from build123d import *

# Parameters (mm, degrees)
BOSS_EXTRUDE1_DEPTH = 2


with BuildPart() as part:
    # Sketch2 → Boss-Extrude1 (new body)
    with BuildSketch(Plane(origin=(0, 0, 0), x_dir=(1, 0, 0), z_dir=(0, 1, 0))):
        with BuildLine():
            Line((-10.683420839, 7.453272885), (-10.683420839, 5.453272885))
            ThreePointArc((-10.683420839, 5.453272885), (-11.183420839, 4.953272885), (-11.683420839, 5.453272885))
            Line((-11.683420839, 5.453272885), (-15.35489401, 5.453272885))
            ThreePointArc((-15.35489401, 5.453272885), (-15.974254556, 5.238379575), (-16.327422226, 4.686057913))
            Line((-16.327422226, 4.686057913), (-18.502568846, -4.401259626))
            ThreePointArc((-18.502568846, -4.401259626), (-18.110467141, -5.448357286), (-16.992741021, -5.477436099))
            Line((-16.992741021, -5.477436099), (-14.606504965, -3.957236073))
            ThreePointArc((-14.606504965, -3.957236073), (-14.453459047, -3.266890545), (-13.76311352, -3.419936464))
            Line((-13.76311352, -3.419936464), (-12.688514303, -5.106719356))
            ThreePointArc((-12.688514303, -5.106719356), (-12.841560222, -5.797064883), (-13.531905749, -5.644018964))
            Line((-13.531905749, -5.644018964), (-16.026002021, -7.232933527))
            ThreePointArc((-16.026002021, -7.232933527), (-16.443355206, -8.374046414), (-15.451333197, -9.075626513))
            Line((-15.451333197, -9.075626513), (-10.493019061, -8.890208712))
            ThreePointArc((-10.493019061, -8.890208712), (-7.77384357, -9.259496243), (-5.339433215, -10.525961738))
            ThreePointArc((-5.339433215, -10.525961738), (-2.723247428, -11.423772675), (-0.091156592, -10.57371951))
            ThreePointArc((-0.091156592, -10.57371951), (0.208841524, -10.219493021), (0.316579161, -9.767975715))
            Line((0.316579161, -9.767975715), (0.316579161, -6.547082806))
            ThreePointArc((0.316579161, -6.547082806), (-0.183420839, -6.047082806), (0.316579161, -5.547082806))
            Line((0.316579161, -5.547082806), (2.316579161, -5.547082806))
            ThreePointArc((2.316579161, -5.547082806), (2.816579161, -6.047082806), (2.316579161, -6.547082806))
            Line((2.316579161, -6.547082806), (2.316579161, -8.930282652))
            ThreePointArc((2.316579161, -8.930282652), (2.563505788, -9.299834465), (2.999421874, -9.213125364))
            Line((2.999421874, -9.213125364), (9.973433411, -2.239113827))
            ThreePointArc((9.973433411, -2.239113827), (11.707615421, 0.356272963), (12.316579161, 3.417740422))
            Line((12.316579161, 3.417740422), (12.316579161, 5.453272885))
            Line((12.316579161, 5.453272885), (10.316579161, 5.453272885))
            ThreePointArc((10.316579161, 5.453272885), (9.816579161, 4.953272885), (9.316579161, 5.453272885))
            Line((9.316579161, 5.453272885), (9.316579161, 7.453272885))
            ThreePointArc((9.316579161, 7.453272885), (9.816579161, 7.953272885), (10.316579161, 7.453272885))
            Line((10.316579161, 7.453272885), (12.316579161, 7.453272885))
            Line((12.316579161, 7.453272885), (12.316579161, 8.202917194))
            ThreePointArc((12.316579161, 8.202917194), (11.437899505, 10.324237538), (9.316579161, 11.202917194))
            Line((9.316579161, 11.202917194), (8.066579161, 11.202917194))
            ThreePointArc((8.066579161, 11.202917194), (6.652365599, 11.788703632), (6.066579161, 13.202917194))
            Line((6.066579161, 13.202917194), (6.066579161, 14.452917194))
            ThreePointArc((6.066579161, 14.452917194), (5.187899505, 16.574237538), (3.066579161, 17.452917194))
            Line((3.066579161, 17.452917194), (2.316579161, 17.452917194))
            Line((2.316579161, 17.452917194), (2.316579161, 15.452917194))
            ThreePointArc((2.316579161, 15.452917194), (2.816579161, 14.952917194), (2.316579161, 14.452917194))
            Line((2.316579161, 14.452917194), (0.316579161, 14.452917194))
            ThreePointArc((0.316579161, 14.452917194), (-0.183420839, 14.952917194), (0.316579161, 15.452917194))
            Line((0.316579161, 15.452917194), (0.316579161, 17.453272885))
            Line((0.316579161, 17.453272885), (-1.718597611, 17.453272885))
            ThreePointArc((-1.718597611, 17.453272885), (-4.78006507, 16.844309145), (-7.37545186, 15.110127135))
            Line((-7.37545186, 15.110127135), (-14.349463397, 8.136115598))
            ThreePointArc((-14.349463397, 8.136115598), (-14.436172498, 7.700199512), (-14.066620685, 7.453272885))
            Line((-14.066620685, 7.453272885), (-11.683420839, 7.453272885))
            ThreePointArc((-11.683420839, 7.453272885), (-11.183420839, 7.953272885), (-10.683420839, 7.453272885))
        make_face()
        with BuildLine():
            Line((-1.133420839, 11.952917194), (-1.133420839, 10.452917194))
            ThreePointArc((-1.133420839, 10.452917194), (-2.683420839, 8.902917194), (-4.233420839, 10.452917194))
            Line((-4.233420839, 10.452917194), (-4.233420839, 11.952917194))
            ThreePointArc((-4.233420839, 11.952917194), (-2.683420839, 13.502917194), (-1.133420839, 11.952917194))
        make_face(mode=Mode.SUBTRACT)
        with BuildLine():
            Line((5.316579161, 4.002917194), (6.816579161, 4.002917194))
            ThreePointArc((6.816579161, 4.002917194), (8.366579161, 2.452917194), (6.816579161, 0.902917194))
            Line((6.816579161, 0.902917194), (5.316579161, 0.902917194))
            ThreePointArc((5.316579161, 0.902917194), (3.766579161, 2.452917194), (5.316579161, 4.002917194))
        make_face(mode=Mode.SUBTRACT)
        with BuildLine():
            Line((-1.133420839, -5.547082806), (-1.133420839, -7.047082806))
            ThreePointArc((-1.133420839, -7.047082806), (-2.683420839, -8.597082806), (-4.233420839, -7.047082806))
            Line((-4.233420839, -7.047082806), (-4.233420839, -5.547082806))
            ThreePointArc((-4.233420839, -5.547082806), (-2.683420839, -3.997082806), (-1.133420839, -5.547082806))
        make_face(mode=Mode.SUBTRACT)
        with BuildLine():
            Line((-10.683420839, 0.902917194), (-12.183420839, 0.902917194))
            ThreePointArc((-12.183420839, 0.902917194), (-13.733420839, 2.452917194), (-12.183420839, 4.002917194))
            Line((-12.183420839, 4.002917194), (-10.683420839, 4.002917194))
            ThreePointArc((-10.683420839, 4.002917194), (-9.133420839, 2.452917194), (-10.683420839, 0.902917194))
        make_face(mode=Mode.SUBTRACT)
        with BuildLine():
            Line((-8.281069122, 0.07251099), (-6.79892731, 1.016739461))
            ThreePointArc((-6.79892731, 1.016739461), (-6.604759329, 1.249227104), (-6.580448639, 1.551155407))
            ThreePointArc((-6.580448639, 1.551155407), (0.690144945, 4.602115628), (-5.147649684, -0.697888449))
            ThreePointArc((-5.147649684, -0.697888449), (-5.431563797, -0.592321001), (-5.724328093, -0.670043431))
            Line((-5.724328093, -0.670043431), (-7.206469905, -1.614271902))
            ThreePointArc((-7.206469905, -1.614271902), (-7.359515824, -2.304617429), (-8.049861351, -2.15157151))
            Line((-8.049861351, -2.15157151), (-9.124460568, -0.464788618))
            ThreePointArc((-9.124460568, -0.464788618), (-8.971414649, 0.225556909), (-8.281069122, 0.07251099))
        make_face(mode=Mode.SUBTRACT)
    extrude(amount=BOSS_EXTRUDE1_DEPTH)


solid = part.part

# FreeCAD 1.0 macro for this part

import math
import FreeCAD as App
import Part
import Sketcher
Q = App.Units.Quantity

doc = App.newDocument("Part")
params = doc.addObject("Spreadsheet::Sheet", "Params")
for row, (alias, value) in enumerate([
    ("sketch1_radius", "1 mm"),
    ("sketch1_radius2", "1 mm"),
    ("sketch1_radius3", "1 mm"),
    ("sketch1_radius4", "8 mm"),
    ("sketch1_radius5", "1 mm"),
    ("pad1_length", "2 mm"),
], start=1):
    params.set(f"A{row}", alias)
    params.set(f"B{row}", "=" + value)
    params.setAlias(f"B{row}", alias)

body = doc.addObject("PartDesign::Body", "Body")

# Sketch on XZ plane
sketch1 = body.newObject("Sketcher::SketchObject", "Sketch")
sketch1.AttachmentSupport = (doc.getObject("XZ_Plane"), [""])
sketch1.MapMode = "FlatFace"
sketch1.addGeometry([
    Part.LineSegment(App.Vector(-10.683421, -7.453273, 0), App.Vector(-10.683421, -5.453273, 0)),  # 0
    Part.ArcOfCircle(Part.Circle(App.Vector(-11.183421, -5.453273, 0), App.Vector(0, 0, 1), 0.5), math.radians(0), math.radians(180)),  # 1
    Part.LineSegment(App.Vector(-11.683421, -5.453273, 0), App.Vector(-15.354894, -5.453273, 0)),  # 2
    Part.ArcOfCircle(Part.Circle(App.Vector(-15.354894, -4.453273, 0), App.Vector(0, 0, 1), 1), math.radians(-166.538906), math.radians(-90)),  # 3
    Part.LineSegment(App.Vector(-16.327422, -4.686058, 0), App.Vector(-18.502569, 4.40126, 0)),  # 4
    Part.ArcOfCircle(Part.Circle(App.Vector(-17.530041, 4.634045, 0), App.Vector(0, 0, 1), 1), math.radians(57.5), math.radians(193.461094)),  # 5
    Part.LineSegment(App.Vector(-16.992741, 5.477436, 0), App.Vector(-14.606505, 3.957236, 0)),  # 6
    Part.ArcOfCircle(Part.Circle(App.Vector(-14.184809, 3.688586, 0), App.Vector(0, 0, 1), 0.5), math.radians(147.5), math.radians(327.5)),  # 7
    Part.LineSegment(App.Vector(-13.763114, 3.419936, 0), App.Vector(-12.688514, 5.106719, 0)),  # 8
    Part.ArcOfCircle(Part.Circle(App.Vector(-13.11021, 5.375369, 0), App.Vector(0, 0, 1), 0.5), math.radians(-32.5), math.radians(147.5)),  # 9
    Part.LineSegment(App.Vector(-13.531906, 5.644019, 0), App.Vector(-16.026002, 7.232934, 0)),  # 10
    Part.ArcOfCircle(Part.Circle(App.Vector(-15.488702, 8.076325, 0), App.Vector(0, 0, 1), 1), math.radians(87.858403), math.radians(237.5)),  # 11
    Part.LineSegment(App.Vector(-15.451333, 9.075627, 0), App.Vector(-10.493019, 8.890209, 0)),  # 12
    Part.ArcOfCircle(Part.Circle(App.Vector(-10.194065, 16.884621, 0), App.Vector(0, 0, 1), 8), math.radians(-92.141597), math.radians(-52.639428)),  # 13
    Part.ArcOfCircle(Part.Circle(App.Vector(-2.683421, 7.047083, 0), App.Vector(0, 0, 1), 4.376871), math.radians(53.682149), math.radians(127.360572)),  # 14
    Part.ArcOfCircle(Part.Circle(App.Vector(-0.683421, 9.767976, 0), App.Vector(0, 0, 1), 1), math.radians(0), math.radians(53.682149)),  # 15
    Part.LineSegment(App.Vector(0.316579, 9.767976, 0), App.Vector(0.316579, 6.547083, 0)),  # 16
    Part.ArcOfCircle(Part.Circle(App.Vector(0.316579, 6.047083, 0), App.Vector(0, 0, 1), 0.5), math.radians(90), math.radians(270)),  # 17
    Part.LineSegment(App.Vector(0.316579, 5.547083, 0), App.Vector(2.316579, 5.547083, 0)),  # 18
    Part.ArcOfCircle(Part.Circle(App.Vector(2.316579, 6.047083, 0), App.Vector(0, 0, 1), 0.5), math.radians(-90), math.radians(90)),  # 19
    Part.LineSegment(App.Vector(2.316579, 6.547083, 0), App.Vector(2.316579, 8.930283, 0)),  # 20
    Part.ArcOfCircle(Part.Circle(App.Vector(2.716579, 8.930283, 0), App.Vector(0, 0, 1), 0.4), math.radians(45), math.radians(180)),  # 21
    Part.LineSegment(App.Vector(2.999422, 9.213125, 0), App.Vector(9.973433, 2.239114, 0)),  # 22
    Part.ArcOfCircle(Part.Circle(App.Vector(4.316579, -3.41774, 0), App.Vector(0, 0, 1), 8), math.radians(0), math.radians(45)),  # 23
    Part.LineSegment(App.Vector(12.316579, -3.41774, 0), App.Vector(12.316579, -5.453273, 0)),  # 24
    Part.LineSegment(App.Vector(12.316579, -5.453273, 0), App.Vector(10.316579, -5.453273, 0)),  # 25
    Part.ArcOfCircle(Part.Circle(App.Vector(9.816579, -5.453273, 0), App.Vector(0, 0, 1), 0.5), math.radians(0), math.radians(180)),  # 26
    Part.LineSegment(App.Vector(9.316579, -5.453273, 0), App.Vector(9.316579, -7.453273, 0)),  # 27
    Part.ArcOfCircle(Part.Circle(App.Vector(9.816579, -7.453273, 0), App.Vector(0, 0, 1), 0.5), math.radians(180), math.radians(360)),  # 28
    Part.LineSegment(App.Vector(10.316579, -7.453273, 0), App.Vector(12.316579, -7.453273, 0)),  # 29
    Part.LineSegment(App.Vector(12.316579, -7.453273, 0), App.Vector(12.316579, -8.202917, 0)),  # 30
    Part.ArcOfCircle(Part.Circle(App.Vector(9.316579, -8.202917, 0), App.Vector(0, 0, 1), 3), math.radians(-90), math.radians(0)),  # 31
    Part.LineSegment(App.Vector(9.316579, -11.202917, 0), App.Vector(8.066579, -11.202917, 0)),  # 32
    Part.ArcOfCircle(Part.Circle(App.Vector(8.066579, -13.202917, 0), App.Vector(0, 0, 1), 2), math.radians(90), math.radians(180)),  # 33
    Part.LineSegment(App.Vector(6.066579, -13.202917, 0), App.Vector(6.066579, -14.452917, 0)),  # 34
    Part.ArcOfCircle(Part.Circle(App.Vector(3.066579, -14.452917, 0), App.Vector(0, 0, 1), 3), math.radians(-90), math.radians(0)),  # 35
    Part.LineSegment(App.Vector(3.066579, -17.452917, 0), App.Vector(2.316579, -17.452917, 0)),  # 36
    Part.LineSegment(App.Vector(2.316579, -17.452917, 0), App.Vector(2.316579, -15.452917, 0)),  # 37
    Part.ArcOfCircle(Part.Circle(App.Vector(2.316579, -14.952917, 0), App.Vector(0, 0, 1), 0.5), math.radians(-90), math.radians(90)),  # 38
    Part.LineSegment(App.Vector(2.316579, -14.452917, 0), App.Vector(0.316579, -14.452917, 0)),  # 39
    Part.ArcOfCircle(Part.Circle(App.Vector(0.316579, -14.952917, 0), App.Vector(0, 0, 1), 0.5), math.radians(90), math.radians(270)),  # 40
    Part.LineSegment(App.Vector(0.316579, -15.452917, 0), App.Vector(0.316579, -17.453273, 0)),  # 41
    Part.LineSegment(App.Vector(0.316579, -17.453273, 0), App.Vector(-1.718598, -17.453273, 0)),  # 42
    Part.ArcOfCircle(Part.Circle(App.Vector(-1.718598, -9.453273, 0), App.Vector(0, 0, 1), 8), math.radians(-135), math.radians(-90)),  # 43
    Part.LineSegment(App.Vector(-7.375452, -15.110127, 0), App.Vector(-14.349463, -8.136116, 0)),  # 44
    Part.ArcOfCircle(Part.Circle(App.Vector(-14.066621, -7.853273, 0), App.Vector(0, 0, 1), 0.4), math.radians(90), math.radians(225)),  # 45
    Part.LineSegment(App.Vector(-14.066621, -7.453273, 0), App.Vector(-11.683421, -7.453273, 0)),  # 46
    Part.ArcOfCircle(Part.Circle(App.Vector(-11.183421, -7.453273, 0), App.Vector(0, 0, 1), 0.5), math.radians(180), math.radians(360)),  # 47
    Part.ArcOfCircle(Part.Circle(App.Vector(-8.702765, 0.196139, 0), App.Vector(0, 0, 1), 0.5), math.radians(147.5), math.radians(327.5)),  # 48
    Part.LineSegment(App.Vector(-8.281069, -0.072511, 0), App.Vector(-6.798927, -1.016739, 0)),  # 49
    Part.ArcOfCircle(Part.Circle(App.Vector(-7.067577, -1.438435, 0), App.Vector(0, 0, 1), 0.5), math.radians(-13.028779), math.radians(57.5)),  # 50
    Part.ArcOfCircle(Part.Circle(App.Vector(-2.683421, -2.452917, 0), App.Vector(0, 0, 1), 4), math.radians(166.971221), math.radians(488.028779)),  # 51
    Part.ArcOfCircle(Part.Circle(App.Vector(-5.455678, 1.091739, 0), App.Vector(0, 0, 1), 0.5), math.radians(-122.5), math.radians(-51.97122)),  # 52
    Part.LineSegment(App.Vector(-5.724328, 0.670043, 0), App.Vector(-7.20647, 1.614272, 0)),  # 53
    Part.ArcOfCircle(Part.Circle(App.Vector(-7.628166, 1.882922, 0), App.Vector(0, 0, 1), 0.5), math.radians(-32.5), math.radians(147.5)),  # 54
    Part.LineSegment(App.Vector(-8.049861, 2.151572, 0), App.Vector(-9.124461, 0.464789, 0)),  # 55
    Part.ArcOfCircle(Part.Circle(App.Vector(-2.683421, 5.547083, 0), App.Vector(0, 0, 1), 1.55), math.radians(180), math.radians(360)),  # 56
    Part.LineSegment(App.Vector(-1.133421, 5.547083, 0), App.Vector(-1.133421, 7.047083, 0)),  # 57
    Part.ArcOfCircle(Part.Circle(App.Vector(-2.683421, 7.047083, 0), App.Vector(0, 0, 1), 1.55), math.radians(0), math.radians(180)),  # 58
    Part.LineSegment(App.Vector(-4.233421, 7.047083, 0), App.Vector(-4.233421, 5.547083, 0)),  # 59
    Part.ArcOfCircle(Part.Circle(App.Vector(-10.683421, -2.452917, 0), App.Vector(0, 0, 1), 1.55), math.radians(-90), math.radians(90)),  # 60
    Part.LineSegment(App.Vector(-10.683421, -0.902917, 0), App.Vector(-12.183421, -0.902917, 0)),  # 61
    Part.ArcOfCircle(Part.Circle(App.Vector(-12.183421, -2.452917, 0), App.Vector(0, 0, 1), 1.55), math.radians(90), math.radians(270)),  # 62
    Part.LineSegment(App.Vector(-12.183421, -4.002917, 0), App.Vector(-10.683421, -4.002917, 0)),  # 63
    Part.ArcOfCircle(Part.Circle(App.Vector(5.316579, -2.452917, 0), App.Vector(0, 0, 1), 1.55), math.radians(90), math.radians(270)),  # 64
    Part.LineSegment(App.Vector(5.316579, -4.002917, 0), App.Vector(6.816579, -4.002917, 0)),  # 65
    Part.ArcOfCircle(Part.Circle(App.Vector(6.816579, -2.452917, 0), App.Vector(0, 0, 1), 1.55), math.radians(-90), math.radians(90)),  # 66
    Part.LineSegment(App.Vector(6.816579, -0.902917, 0), App.Vector(5.316579, -0.902917, 0)),  # 67
    Part.ArcOfCircle(Part.Circle(App.Vector(-2.683421, -11.952917, 0), App.Vector(0, 0, 1), 1.55), math.radians(180), math.radians(360)),  # 68
    Part.LineSegment(App.Vector(-1.133421, -11.952917, 0), App.Vector(-1.133421, -10.452917, 0)),  # 69
    Part.ArcOfCircle(Part.Circle(App.Vector(-2.683421, -10.452917, 0), App.Vector(0, 0, 1), 1.55), math.radians(0), math.radians(180)),  # 70
    Part.LineSegment(App.Vector(-4.233421, -10.452917, 0), App.Vector(-4.233421, -11.952917, 0)),  # 71
], False)
sketch1.addConstraint([
    Sketcher.Constraint("Coincident", 0, 2, 1, 1),
    Sketcher.Constraint("Coincident", 1, 2, 2, 1),
    Sketcher.Constraint("Coincident", 2, 2, 3, 2),
    Sketcher.Constraint("Coincident", 3, 1, 4, 1),
    Sketcher.Constraint("Coincident", 4, 2, 5, 2),
    Sketcher.Constraint("Coincident", 5, 1, 6, 1),
    Sketcher.Constraint("Coincident", 6, 2, 7, 1),
    Sketcher.Constraint("Coincident", 7, 2, 8, 1),
    Sketcher.Constraint("Coincident", 8, 2, 9, 1),
    Sketcher.Constraint("Coincident", 9, 2, 10, 1),
    Sketcher.Constraint("Coincident", 10, 2, 11, 2),
    Sketcher.Constraint("Coincident", 11, 1, 12, 1),
    Sketcher.Constraint("Coincident", 12, 2, 13, 1),
    Sketcher.Constraint("Coincident", 13, 2, 14, 2),
    Sketcher.Constraint("Coincident", 14, 1, 15, 2),
    Sketcher.Constraint("Coincident", 15, 1, 16, 1),
    Sketcher.Constraint("Coincident", 16, 2, 17, 1),
    Sketcher.Constraint("Coincident", 17, 2, 18, 1),
    Sketcher.Constraint("Coincident", 18, 2, 19, 1),
    Sketcher.Constraint("Coincident", 19, 2, 20, 1),
    Sketcher.Constraint("Coincident", 20, 2, 21, 2),
    Sketcher.Constraint("Coincident", 21, 1, 22, 1),
    Sketcher.Constraint("Coincident", 22, 2, 23, 2),
    Sketcher.Constraint("Coincident", 23, 1, 24, 1),
    Sketcher.Constraint("Coincident", 24, 2, 25, 1),
    Sketcher.Constraint("Coincident", 25, 2, 26, 1),
    Sketcher.Constraint("Coincident", 26, 2, 27, 1),
    Sketcher.Constraint("Coincident", 27, 2, 28, 1),
    Sketcher.Constraint("Coincident", 28, 2, 29, 1),
    Sketcher.Constraint("Coincident", 29, 2, 30, 1),
    Sketcher.Constraint("Coincident", 30, 2, 31, 2),
    Sketcher.Constraint("Coincident", 31, 1, 32, 1),
    Sketcher.Constraint("Coincident", 32, 2, 33, 1),
    Sketcher.Constraint("Coincident", 33, 2, 34, 1),
    Sketcher.Constraint("Coincident", 34, 2, 35, 2),
    Sketcher.Constraint("Coincident", 35, 1, 36, 1),
    Sketcher.Constraint("Coincident", 36, 2, 37, 1),
    Sketcher.Constraint("Coincident", 37, 2, 38, 1),
    Sketcher.Constraint("Coincident", 38, 2, 39, 1),
    Sketcher.Constraint("Coincident", 39, 2, 40, 1),
    Sketcher.Constraint("Coincident", 40, 2, 41, 1),
    Sketcher.Constraint("Coincident", 41, 2, 42, 1),
    Sketcher.Constraint("Coincident", 42, 2, 43, 2),
    Sketcher.Constraint("Coincident", 43, 1, 44, 1),
    Sketcher.Constraint("Coincident", 44, 2, 45, 2),
    Sketcher.Constraint("Coincident", 45, 1, 46, 1),
    Sketcher.Constraint("Coincident", 46, 2, 47, 1),
    Sketcher.Constraint("Coincident", 47, 2, 0, 1),
    Sketcher.Constraint("Coincident", 48, 2, 49, 1),
    Sketcher.Constraint("Coincident", 49, 2, 50, 2),
    Sketcher.Constraint("Coincident", 50, 1, 51, 1),
    Sketcher.Constraint("Coincident", 51, 2, 52, 2),
    Sketcher.Constraint("Coincident", 52, 1, 53, 1),
    Sketcher.Constraint("Coincident", 53, 2, 54, 1),
    Sketcher.Constraint("Coincident", 54, 2, 55, 1),
    Sketcher.Constraint("Coincident", 55, 2, 48, 1),
    Sketcher.Constraint("Coincident", 56, 2, 57, 1),
    Sketcher.Constraint("Coincident", 57, 2, 58, 1),
    Sketcher.Constraint("Coincident", 58, 2, 59, 1),
    Sketcher.Constraint("Coincident", 59, 2, 56, 1),
    Sketcher.Constraint("Coincident", 60, 2, 61, 1),
    Sketcher.Constraint("Coincident", 61, 2, 62, 1),
    Sketcher.Constraint("Coincident", 62, 2, 63, 1),
    Sketcher.Constraint("Coincident", 63, 2, 60, 1),
    Sketcher.Constraint("Coincident", 64, 2, 65, 1),
    Sketcher.Constraint("Coincident", 65, 2, 66, 1),
    Sketcher.Constraint("Coincident", 66, 2, 67, 1),
    Sketcher.Constraint("Coincident", 67, 2, 64, 1),
    Sketcher.Constraint("Coincident", 68, 2, 69, 1),
    Sketcher.Constraint("Coincident", 69, 2, 70, 1),
    Sketcher.Constraint("Coincident", 70, 2, 71, 1),
    Sketcher.Constraint("Coincident", 71, 2, 68, 1),
    Sketcher.Constraint("Vertical", 0),
    Sketcher.Constraint("Horizontal", 2),
    Sketcher.Constraint("Vertical", 16),
    Sketcher.Constraint("Horizontal", 18),
    Sketcher.Constraint("Vertical", 20),
    Sketcher.Constraint("Vertical", 24),
    Sketcher.Constraint("Horizontal", 25),
    Sketcher.Constraint("Vertical", 27),
    Sketcher.Constraint("Horizontal", 29),
    Sketcher.Constraint("Vertical", 30),
    Sketcher.Constraint("Horizontal", 32),
    Sketcher.Constraint("Vertical", 34),
    Sketcher.Constraint("Horizontal", 36),
    Sketcher.Constraint("Vertical", 37),
    Sketcher.Constraint("Horizontal", 39),
    Sketcher.Constraint("Vertical", 41),
    Sketcher.Constraint("Horizontal", 42),
    Sketcher.Constraint("Horizontal", 46),
    Sketcher.Constraint("Vertical", 57),
    Sketcher.Constraint("Vertical", 59),
    Sketcher.Constraint("Horizontal", 61),
    Sketcher.Constraint("Horizontal", 63),
    Sketcher.Constraint("Horizontal", 65),
    Sketcher.Constraint("Horizontal", 67),
    Sketcher.Constraint("Vertical", 69),
    Sketcher.Constraint("Vertical", 71),
    Sketcher.Constraint("Coincident", 58, 3, 14, 3),
    Sketcher.Constraint("Radius", 3, Q("1 mm")),
    Sketcher.Constraint("Radius", 5, Q("1 mm")),
    Sketcher.Constraint("Radius", 11, Q("1 mm")),
    Sketcher.Constraint("Radius", 13, Q("8 mm")),
    Sketcher.Constraint("Radius", 15, Q("1 mm")),
    Sketcher.Constraint("Radius", 23, Q("8 mm")),
    Sketcher.Constraint("Radius", 31, Q("3 mm")),
    Sketcher.Constraint("Radius", 33, Q("2 mm")),
    Sketcher.Constraint("Radius", 35, Q("3 mm")),
    Sketcher.Constraint("Radius", 43, Q("8 mm")),
    Sketcher.Constraint("Radius", 51, Q("4 mm")),
    Sketcher.Constraint("Radius", 1, Q("0.5 mm")),
    Sketcher.Constraint("Radius", 7, Q("0.5 mm")),
    Sketcher.Constraint("Radius", 9, Q("0.5 mm")),
    Sketcher.Constraint("Radius", 17, Q("0.5 mm")),
    Sketcher.Constraint("Radius", 19, Q("0.5 mm")),
    Sketcher.Constraint("Radius", 21, Q("0.4 mm")),
    Sketcher.Constraint("Radius", 26, Q("0.5 mm")),
    Sketcher.Constraint("Radius", 28, Q("0.5 mm")),
    Sketcher.Constraint("Radius", 38, Q("0.5 mm")),
    Sketcher.Constraint("Radius", 40, Q("0.5 mm")),
    Sketcher.Constraint("Radius", 45, Q("0.4 mm")),
    Sketcher.Constraint("Radius", 47, Q("0.5 mm")),
    Sketcher.Constraint("Radius", 48, Q("0.5 mm")),
    Sketcher.Constraint("Radius", 50, Q("0.5 mm")),
    Sketcher.Constraint("Radius", 52, Q("0.5 mm")),
    Sketcher.Constraint("Radius", 54, Q("0.5 mm")),
    Sketcher.Constraint("DistanceX", 18, 1, 18, 2, Q("2 mm")),
    Sketcher.Constraint("DistanceX", 25, 2, 25, 1, Q("2 mm")),
    Sketcher.Constraint("DistanceX", 29, 1, 29, 2, Q("2 mm")),
    Sketcher.Constraint("DistanceX", 39, 2, 39, 1, Q("2 mm")),
    Sketcher.Constraint("DistanceY", 0, 1, 0, 2, Q("2 mm")),
    Sketcher.Constraint("DistanceY", 27, 2, 27, 1, Q("2 mm")),
    Sketcher.Constraint("DistanceY", 37, 1, 37, 2, Q("2 mm")),
    Sketcher.Constraint("Radius", 56, Q("1.55 mm")),
    Sketcher.Constraint("Radius", 60, Q("1.55 mm")),
    Sketcher.Constraint("Radius", 64, Q("1.55 mm")),
    Sketcher.Constraint("Radius", 68, Q("1.55 mm")),
    Sketcher.Constraint("Distance", 8, Q("2 mm")),
    Sketcher.Constraint("Distance", 55, Q("2 mm")),
    Sketcher.Constraint("DistanceX", 61, 2, 61, 1, Q("1.5 mm")),
    Sketcher.Constraint("DistanceX", 63, 1, 63, 2, Q("1.5 mm")),
    Sketcher.Constraint("DistanceX", 65, 1, 65, 2, Q("1.5 mm")),
    Sketcher.Constraint("DistanceX", 67, 2, 67, 1, Q("1.5 mm")),
    Sketcher.Constraint("DistanceY", 57, 1, 57, 2, Q("1.5 mm")),
    Sketcher.Constraint("DistanceY", 59, 2, 59, 1, Q("1.5 mm")),
    Sketcher.Constraint("DistanceY", 69, 1, 69, 2, Q("1.5 mm")),
    Sketcher.Constraint("DistanceY", 71, 2, 71, 1, Q("1.5 mm")),
    Sketcher.Constraint("DistanceX", 32, 2, 32, 1, Q("1.25 mm")),
    Sketcher.Constraint("DistanceX", 36, 2, 36, 1, Q("0.75 mm")),
    Sketcher.Constraint("DistanceY", 34, 2, 34, 1, Q("1.25 mm")),
    Sketcher.Constraint("Radius", 14, Q("4.376871 mm")),
    Sketcher.Constraint("DistanceX", 46, 1, 46, 2, Q("2.3832 mm")),
    Sketcher.Constraint("DistanceY", 20, 1, 20, 2, Q("2.3832 mm")),
    Sketcher.Constraint("Distance", 12, Q("4.96178 mm")),
    Sketcher.Constraint("Distance", 22, Q("9.862742 mm")),
    Sketcher.Constraint("Distance", 44, Q("9.862742 mm")),
    Sketcher.Constraint("Distance", 49, Q("1.757359 mm")),
    Sketcher.Constraint("Distance", 53, Q("1.757359 mm")),
    Sketcher.Constraint("DistanceX", 2, 2, 2, 1, Q("3.671473 mm")),
    Sketcher.Constraint("DistanceX", 42, 2, 42, 1, Q("2.035177 mm")),
    Sketcher.Constraint("DistanceY", 16, 2, 16, 1, Q("3.220893 mm")),
    Sketcher.Constraint("DistanceY", 24, 2, 24, 1, Q("2.035532 mm")),
    Sketcher.Constraint("DistanceY", 30, 2, 30, 1, Q("0.749644 mm")),
    Sketcher.Constraint("DistanceY", 41, 2, 41, 1, Q("2.000356 mm")),
    Sketcher.Constraint("DistanceX", 1, 3, -1, 1, Q("11.183421 mm")),
    Sketcher.Constraint("DistanceX", 5, 3, -1, 1, Q("17.530041 mm")),
    Sketcher.Constraint("DistanceX", 7, 3, -1, 1, Q("14.184809 mm")),
    Sketcher.Constraint("DistanceX", 9, 3, -1, 1, Q("13.11021 mm")),
    Sketcher.Constraint("DistanceY", -1, 1, 9, 3, Q("5.375369 mm")),
    Sketcher.Constraint("DistanceY", -1, 1, 13, 3, Q("16.884621 mm")),
    Sketcher.Constraint("DistanceX", 14, 3, -1, 1, Q("2.683421 mm")),
    Sketcher.Constraint("DistanceX", 15, 3, -1, 1, Q("0.683421 mm")),
    Sketcher.Constraint("DistanceX", -1, 1, 17, 3, Q("0.316579 mm")),
    Sketcher.Constraint("DistanceX", -1, 1, 19, 3, Q("2.316579 mm")),
    Sketcher.Constraint("DistanceX", -1, 1, 21, 3, Q("2.716579 mm")),
    Sketcher.Constraint("DistanceX", -1, 1, 23, 3, Q("4.316579 mm")),
    Sketcher.Constraint("DistanceY", 23, 3, -1, 1, Q("3.41774 mm")),
    Sketcher.Constraint("DistanceX", -1, 1, 33, 3, Q("8.066579 mm")),
    Sketcher.Constraint("DistanceX", -1, 1, 38, 3, Q("2.316579 mm")),
    Sketcher.Constraint("DistanceX", -1, 1, 40, 3, Q("0.316579 mm")),
    Sketcher.Constraint("DistanceX", 45, 3, -1, 1, Q("14.066621 mm")),
    Sketcher.Constraint("DistanceY", -1, 1, 48, 3, Q("0.196139 mm")),
    Sketcher.Constraint("DistanceX", 51, 3, -1, 1, Q("2.683421 mm")),
    Sketcher.Constraint("DistanceX", 52, 3, -1, 1, Q("5.455678 mm")),
    Sketcher.Constraint("DistanceY", -1, 1, 52, 3, Q("1.091739 mm")),
    Sketcher.Constraint("DistanceY", -1, 1, 54, 3, Q("1.882922 mm")),
    Sketcher.Constraint("DistanceX", 60, 3, -1, 1, Q("10.683421 mm")),
    Sketcher.Constraint("DistanceX", 62, 3, -1, 1, Q("12.183421 mm")),
    Sketcher.Constraint("DistanceX", -1, 1, 64, 3, Q("5.316579 mm")),
    Sketcher.Constraint("DistanceX", -1, 1, 66, 3, Q("6.816579 mm")),
    Sketcher.Constraint("DistanceX", 68, 3, -1, 1, Q("2.683421 mm")),
    Sketcher.Constraint("DistanceX", 4, 2, -1, 1, Q("18.502569 mm")),
    Sketcher.Constraint("DistanceY", -1, 1, 4, 2, Q("4.40126 mm")),
    Sketcher.Constraint("DistanceX", 5, 1, -1, 1, Q("16.992741 mm")),
    Sketcher.Constraint("DistanceY", -1, 1, 8, 2, Q("5.106719 mm")),
    Sketcher.Constraint("DistanceY", -1, 1, 9, 2, Q("5.644019 mm")),
    Sketcher.Constraint("DistanceX", 12, 2, -1, 1, Q("10.493019 mm")),
    Sketcher.Constraint("DistanceY", -1, 1, 12, 2, Q("8.890209 mm")),
    Sketcher.Constraint("DistanceY", -1, 1, 13, 2, Q("10.525962 mm")),
    Sketcher.Constraint("DistanceY", -1, 1, 14, 1, Q("10.57372 mm")),
    Sketcher.Constraint("DistanceX", -1, 1, 17, 2, Q("0.316579 mm")),
    Sketcher.Constraint("DistanceX", -1, 1, 21, 1, Q("2.999422 mm")),
    Sketcher.Constraint("DistanceY", 23, 1, -1, 1, Q("3.41774 mm")),
    Sketcher.Constraint("DistanceX", -1, 1, 31, 1, Q("9.316579 mm")),
    Sketcher.Constraint("DistanceX", -1, 1, 35, 1, Q("3.066579 mm")),
    Sketcher.Constraint("DistanceX", -1, 1, 38, 2, Q("2.316579 mm")),
    Sketcher.Constraint("DistanceX", -1, 1, 40, 2, Q("0.316579 mm")),
    Sketcher.Constraint("DistanceX", 43, 1, -1, 1, Q("7.375452 mm")),
    Sketcher.Constraint("DistanceX", 48, 2, -1, 1, Q("8.281069 mm")),
    Sketcher.Constraint("DistanceY", 48, 2, -1, 1, Q("0.072511 mm")),
    Sketcher.Constraint("DistanceY", 49, 2, -1, 1, Q("1.016739 mm")),
    Sketcher.Constraint("DistanceX", 50, 1, -1, 1, Q("6.580449 mm")),
    Sketcher.Constraint("DistanceX", 51, 2, -1, 1, Q("5.14765 mm")),
    Sketcher.Constraint("DistanceX", 52, 1, -1, 1, Q("5.724328 mm")),
    Sketcher.Constraint("DistanceX", 53, 2, -1, 1, Q("7.20647 mm")),
    Sketcher.Constraint("DistanceX", 54, 2, -1, 1, Q("8.049861 mm")),
    Sketcher.Constraint("DistanceX", 60, 2, -1, 1, Q("10.683421 mm")),
    Sketcher.Constraint("DistanceX", 62, 2, -1, 1, Q("12.183421 mm")),
    Sketcher.Constraint("DistanceX", -1, 1, 64, 2, Q("5.316579 mm")),
    Sketcher.Constraint("DistanceX", -1, 1, 66, 2, Q("6.816579 mm")),
    Sketcher.Constraint("Distance", 4, Q("9.344014 mm")),
    Sketcher.Constraint("Distance", 6, Q("2.829334 mm")),
    Sketcher.Constraint("Distance", 10, Q("2.957223 mm")),
    Sketcher.Constraint("DistanceY", 1, 3, -1, 1, Q("5.453273 mm")),
    Sketcher.Constraint("DistanceX", 3, 3, -1, 1, Q("15.354894 mm")),
    Sketcher.Constraint("DistanceY", 3, 3, -1, 1, Q("4.453273 mm")),
    Sketcher.Constraint("DistanceX", 11, 3, -1, 1, Q("15.488702 mm")),
    Sketcher.Constraint("DistanceY", -1, 1, 11, 3, Q("8.076325 mm")),
    Sketcher.Constraint("DistanceY", -1, 1, 17, 3, Q("6.047083 mm")),
    Sketcher.Constraint("DistanceY", -1, 1, 21, 3, Q("8.930283 mm")),
    Sketcher.Constraint("DistanceY", 26, 3, -1, 1, Q("5.453273 mm")),
    Sketcher.Constraint("DistanceY", 28, 3, -1, 1, Q("7.453273 mm")),
    Sketcher.Constraint("DistanceY", 31, 3, -1, 1, Q("8.202917 mm")),
    Sketcher.Constraint("DistanceY", 35, 3, -1, 1, Q("14.452917 mm")),
    Sketcher.Constraint("DistanceX", 43, 3, -1, 1, Q("1.718598 mm")),
    Sketcher.Constraint("DistanceY", 45, 3, -1, 1, Q("7.853273 mm")),
    Sketcher.Constraint("DistanceY", 47, 3, -1, 1, Q("7.453273 mm")),
    Sketcher.Constraint("DistanceY", -1, 1, 56, 3, Q("5.547083 mm")),
    Sketcher.Constraint("DistanceY", 60, 3, -1, 1, Q("2.452917 mm")),
    Sketcher.Constraint("DistanceY", 64, 3, -1, 1, Q("2.452917 mm")),
    Sketcher.Constraint("DistanceY", 68, 3, -1, 1, Q("11.952917 mm")),
    Sketcher.Constraint("DistanceY", 70, 3, -1, 1, Q("10.452917 mm")),
    Sketcher.Constraint("DistanceY", 0, 2, -1, 1, Q("5.453273 mm")),
    Sketcher.Constraint("DistanceX", 6, 2, -1, 1, Q("14.606505 mm")),
    Sketcher.Constraint("DistanceY", 26, 2, -1, 1, Q("5.453273 mm")),
    Sketcher.Constraint("DistanceY", 28, 2, -1, 1, Q("7.453273 mm")),
    Sketcher.Constraint("DistanceY", 33, 2, -1, 1, Q("13.202917 mm")),
    Sketcher.Constraint("DistanceY", -1, 1, 56, 2, Q("5.547083 mm")),
    Sketcher.Constraint("DistanceY", -1, 1, 58, 2, Q("7.047083 mm")),
    Sketcher.Constraint("DistanceY", 68, 2, -1, 1, Q("11.952917 mm")),
    Sketcher.Constraint("DistanceY", 70, 2, -1, 1, Q("10.452917 mm")),
])
sketch1.setExpression("Constraints[99]", "Params.sketch1_radius")
sketch1.setExpression("Constraints[100]", "Params.sketch1_radius2")
sketch1.setExpression("Constraints[101]", "Params.sketch1_radius3")
sketch1.setExpression("Constraints[102]", "Params.sketch1_radius4")
sketch1.setExpression("Constraints[103]", "Params.sketch1_radius5")
pad1 = body.newObject("PartDesign::Pad", "Pad")
pad1.Profile = sketch1
pad1.setExpression("Length", "Params.pad1_length")
pad1.Reversed = True

doc.recompute()
